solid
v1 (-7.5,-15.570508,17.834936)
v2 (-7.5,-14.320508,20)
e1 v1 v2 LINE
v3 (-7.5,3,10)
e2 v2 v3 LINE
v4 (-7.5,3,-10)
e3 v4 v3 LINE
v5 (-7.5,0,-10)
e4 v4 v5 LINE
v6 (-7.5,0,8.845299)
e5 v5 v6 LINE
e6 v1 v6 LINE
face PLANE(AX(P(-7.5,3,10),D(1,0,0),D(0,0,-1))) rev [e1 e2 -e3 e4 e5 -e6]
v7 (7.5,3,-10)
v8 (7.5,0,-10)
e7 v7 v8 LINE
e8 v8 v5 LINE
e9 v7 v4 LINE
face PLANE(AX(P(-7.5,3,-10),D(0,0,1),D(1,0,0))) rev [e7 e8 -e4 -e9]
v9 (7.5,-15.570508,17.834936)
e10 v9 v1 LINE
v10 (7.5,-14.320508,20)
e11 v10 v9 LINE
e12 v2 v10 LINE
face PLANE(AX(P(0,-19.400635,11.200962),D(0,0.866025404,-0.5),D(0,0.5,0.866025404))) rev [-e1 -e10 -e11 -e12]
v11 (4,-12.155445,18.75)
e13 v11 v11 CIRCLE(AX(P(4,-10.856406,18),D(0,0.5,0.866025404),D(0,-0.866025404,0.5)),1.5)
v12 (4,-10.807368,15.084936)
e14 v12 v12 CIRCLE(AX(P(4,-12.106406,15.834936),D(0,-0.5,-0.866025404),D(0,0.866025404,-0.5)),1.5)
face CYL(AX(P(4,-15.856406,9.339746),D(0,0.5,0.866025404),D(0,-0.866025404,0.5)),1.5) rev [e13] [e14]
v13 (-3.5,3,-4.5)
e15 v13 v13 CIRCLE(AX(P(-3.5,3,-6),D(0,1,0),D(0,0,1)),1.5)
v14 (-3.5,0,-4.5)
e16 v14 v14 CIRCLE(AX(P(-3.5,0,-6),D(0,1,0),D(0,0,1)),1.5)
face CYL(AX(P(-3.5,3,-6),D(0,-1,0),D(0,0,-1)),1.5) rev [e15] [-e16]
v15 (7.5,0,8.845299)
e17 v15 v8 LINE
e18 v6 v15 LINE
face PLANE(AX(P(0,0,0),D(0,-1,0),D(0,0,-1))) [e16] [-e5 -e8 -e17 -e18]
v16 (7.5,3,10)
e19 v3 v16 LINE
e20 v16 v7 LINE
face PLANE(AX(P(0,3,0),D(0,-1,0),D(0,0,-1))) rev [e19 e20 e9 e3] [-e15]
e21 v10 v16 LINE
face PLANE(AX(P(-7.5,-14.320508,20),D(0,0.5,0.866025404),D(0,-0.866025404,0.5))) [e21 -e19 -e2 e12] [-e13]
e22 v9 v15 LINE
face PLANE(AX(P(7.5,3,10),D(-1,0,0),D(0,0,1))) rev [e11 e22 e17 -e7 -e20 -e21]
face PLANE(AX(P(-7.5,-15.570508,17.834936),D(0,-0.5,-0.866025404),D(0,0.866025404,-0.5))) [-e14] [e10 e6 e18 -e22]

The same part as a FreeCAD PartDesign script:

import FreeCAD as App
import Part
import Sketcher
from FreeCAD import Vector
Q = App.Units.Quantity


def add_polygon(sketch, points):
    """Adds a closed chain of lines whose ends are joined by coincident constraints."""
    first, n = sketch.GeometryCount, len(points)
    for a, b in zip(points, points[1:] + points[:1]):
        sketch.addGeometry(Part.LineSegment(App.Vector(*a, 0), App.Vector(*b, 0)), False)
    for i in range(n):
        sketch.addConstraint(Sketcher.Constraint("Coincident", first + i, 2, first + (i + 1) % n, 1))

doc = App.newDocument("Part")
params = doc.addObject("Spreadsheet::Sheet", "Params")
for row, (alias, value) in enumerate([
    ("sketch1_diameter", "3 mm"),
    ("sketch1_width", "15 mm"),
    ("sketch1_height", "20 mm"),
    ("pad1_length", "3 mm"),
    ("sketch2_width", "15 mm"),
    ("sketch2_height", "2.5 mm"),
    ("pad2_length", "20 mm"),
    ("sketch3_diameter", "3 mm"),
    ("pocket1_length", "10 mm"),
], start=1):
    params.set(f"A{row}", alias)
    params.set(f"B{row}", "=" + value)
    params.setAlias(f"B{row}", alias)

body = doc.addObject("PartDesign::Body", "Body")

# Sketch on XZ plane
sketch1 = body.newObject("Sketcher::SketchObject", "Sketch")
sketch1.AttachmentSupport = (doc.getObject("XZ_Plane"), [""])
sketch1.MapMode = "FlatFace"
add_polygon(sketch1, [(-7.5, -10), (-7.5, 10), (7.5, 10), (7.5, -10)])  # lines 0-3
sketch1.addGeometry(Part.Circle(Vector(-3.5, -6, 0), Vector(0, 0, 1), 1.5), False)  # 4
sketch1.addConstraint(Sketcher.Constraint("Vertical", 0))
sketch1.addConstraint(Sketcher.Constraint("Horizontal", 1))
sketch1.addConstraint(Sketcher.Constraint("Vertical", 2))
sketch1.addConstraint(Sketcher.Constraint("Horizontal", 3))
sketch1.addConstraint(Sketcher.Constraint("Symmetric", 0, 2, 2, 2, -1, 1))
sketch1.addConstraint(Sketcher.Constraint("Diameter", 4, Q("3 mm")))
sketch1.addConstraint(Sketcher.Constraint("DistanceX", 1, 1, 1, 2, Q("15 mm")))
sketch1.addConstraint(Sketcher.Constraint("DistanceY", 0, 1, 0, 2, Q("20 mm")))
sketch1.addConstraint(Sketcher.Constraint("DistanceY", 4, 3, -1, 1, Q("6 mm")))
sketch1.addConstraint(Sketcher.Constraint("DistanceX", 0, 2, 4, 3, Q("4 mm")))
sketch1.setExpression("Constraints[9]", "Params.sketch1_diameter")
sketch1.setExpression("Constraints[10]", "Params.sketch1_width")
sketch1.setExpression("Constraints[11]", "Params.sketch1_height")
pad1 = body.newObject("PartDesign::Pad", "Pad")
pad1.Profile = sketch1
pad1.setExpression("Length", "Params.pad1_length")
pad1.Reversed = True

# Sketch on an angled plane
sketch2 = body.newObject("Sketcher::SketchObject", "Sketch001")
sketch2.Placement = App.Placement(Vector(0, -2.080127, 1.200962), App.Rotation(Vector(1, 0, 0), Vector(0, -0.5, -0.866025404), Vector(0, 0.866025404, -0.5), "ZXY"))
add_polygon(sketch2, [(-7.5, -7.7), (-7.5, -10.2), (7.5, -10.2), (7.5, -7.7)])  # lines 0-3
sketch2.addConstraint(Sketcher.Constraint("Vertical", 0))
sketch2.addConstraint(Sketcher.Constraint("Horizontal", 1))
sketch2.addConstraint(Sketcher.Constraint("Vertical", 2))
sketch2.addConstraint(Sketcher.Constraint("Horizontal", 3))
sketch2.addConstraint(Sketcher.Constraint("DistanceX", 1, 1, 1, 2, Q("15 mm")))
sketch2.addConstraint(Sketcher.Constraint("DistanceY", 0, 2, 0, 1, Q("2.5 mm")))
sketch2.addConstraint(Sketcher.Constraint("DistanceX", 0, 2, -1, 1, Q("7.5 mm")))
sketch2.addConstraint(Sketcher.Constraint("DistanceY", 0, 2, -1, 1, Q("10.160254 mm")))
sketch2.setExpression("Constraints[8]", "Params.sketch2_width")
sketch2.setExpression("Constraints[9]", "Params.sketch2_height")
pad2 = body.newObject("PartDesign::Pad", "Pad001")
pad2.Profile = sketch2
pad2.setExpression("Length", "Params.pad2_length")
pad2.Reversed = True

# Sketch on an angled plane
sketch3 = body.newObject("Sketcher::SketchObject", "Sketch002")
sketch3.Placement = App.Placement(Vector(0, 5.080127, 8.799038), App.Rotation(Vector(1, 0, 0), Vector(0, 0.866025404, -0.5), Vector(0, 0.5, 0.866025404), "ZXY"))
sketch3.addGeometry(Part.Circle(Vector(4, -18.4, 0), Vector(0, 0, 1), 1.5), False)
sketch3.addConstraint(Sketcher.Constraint("Diameter", 0, Q("3 mm")))
sketch3.addConstraint(Sketcher.Constraint("DistanceX", -1, 1, 0, 3, Q("4 mm")))
sketch3.addConstraint(Sketcher.Constraint("DistanceY", 0, 3, -1, 1, Q("18.401924 mm")))
sketch3.setExpression("Constraints[0]", "Params.sketch3_diameter")
pocket1 = body.newObject("PartDesign::Pocket", "Pocket")
pocket1.Profile = sketch3
pocket1.setExpression("Length", "Params.pocket1_length")

doc.recompute()
